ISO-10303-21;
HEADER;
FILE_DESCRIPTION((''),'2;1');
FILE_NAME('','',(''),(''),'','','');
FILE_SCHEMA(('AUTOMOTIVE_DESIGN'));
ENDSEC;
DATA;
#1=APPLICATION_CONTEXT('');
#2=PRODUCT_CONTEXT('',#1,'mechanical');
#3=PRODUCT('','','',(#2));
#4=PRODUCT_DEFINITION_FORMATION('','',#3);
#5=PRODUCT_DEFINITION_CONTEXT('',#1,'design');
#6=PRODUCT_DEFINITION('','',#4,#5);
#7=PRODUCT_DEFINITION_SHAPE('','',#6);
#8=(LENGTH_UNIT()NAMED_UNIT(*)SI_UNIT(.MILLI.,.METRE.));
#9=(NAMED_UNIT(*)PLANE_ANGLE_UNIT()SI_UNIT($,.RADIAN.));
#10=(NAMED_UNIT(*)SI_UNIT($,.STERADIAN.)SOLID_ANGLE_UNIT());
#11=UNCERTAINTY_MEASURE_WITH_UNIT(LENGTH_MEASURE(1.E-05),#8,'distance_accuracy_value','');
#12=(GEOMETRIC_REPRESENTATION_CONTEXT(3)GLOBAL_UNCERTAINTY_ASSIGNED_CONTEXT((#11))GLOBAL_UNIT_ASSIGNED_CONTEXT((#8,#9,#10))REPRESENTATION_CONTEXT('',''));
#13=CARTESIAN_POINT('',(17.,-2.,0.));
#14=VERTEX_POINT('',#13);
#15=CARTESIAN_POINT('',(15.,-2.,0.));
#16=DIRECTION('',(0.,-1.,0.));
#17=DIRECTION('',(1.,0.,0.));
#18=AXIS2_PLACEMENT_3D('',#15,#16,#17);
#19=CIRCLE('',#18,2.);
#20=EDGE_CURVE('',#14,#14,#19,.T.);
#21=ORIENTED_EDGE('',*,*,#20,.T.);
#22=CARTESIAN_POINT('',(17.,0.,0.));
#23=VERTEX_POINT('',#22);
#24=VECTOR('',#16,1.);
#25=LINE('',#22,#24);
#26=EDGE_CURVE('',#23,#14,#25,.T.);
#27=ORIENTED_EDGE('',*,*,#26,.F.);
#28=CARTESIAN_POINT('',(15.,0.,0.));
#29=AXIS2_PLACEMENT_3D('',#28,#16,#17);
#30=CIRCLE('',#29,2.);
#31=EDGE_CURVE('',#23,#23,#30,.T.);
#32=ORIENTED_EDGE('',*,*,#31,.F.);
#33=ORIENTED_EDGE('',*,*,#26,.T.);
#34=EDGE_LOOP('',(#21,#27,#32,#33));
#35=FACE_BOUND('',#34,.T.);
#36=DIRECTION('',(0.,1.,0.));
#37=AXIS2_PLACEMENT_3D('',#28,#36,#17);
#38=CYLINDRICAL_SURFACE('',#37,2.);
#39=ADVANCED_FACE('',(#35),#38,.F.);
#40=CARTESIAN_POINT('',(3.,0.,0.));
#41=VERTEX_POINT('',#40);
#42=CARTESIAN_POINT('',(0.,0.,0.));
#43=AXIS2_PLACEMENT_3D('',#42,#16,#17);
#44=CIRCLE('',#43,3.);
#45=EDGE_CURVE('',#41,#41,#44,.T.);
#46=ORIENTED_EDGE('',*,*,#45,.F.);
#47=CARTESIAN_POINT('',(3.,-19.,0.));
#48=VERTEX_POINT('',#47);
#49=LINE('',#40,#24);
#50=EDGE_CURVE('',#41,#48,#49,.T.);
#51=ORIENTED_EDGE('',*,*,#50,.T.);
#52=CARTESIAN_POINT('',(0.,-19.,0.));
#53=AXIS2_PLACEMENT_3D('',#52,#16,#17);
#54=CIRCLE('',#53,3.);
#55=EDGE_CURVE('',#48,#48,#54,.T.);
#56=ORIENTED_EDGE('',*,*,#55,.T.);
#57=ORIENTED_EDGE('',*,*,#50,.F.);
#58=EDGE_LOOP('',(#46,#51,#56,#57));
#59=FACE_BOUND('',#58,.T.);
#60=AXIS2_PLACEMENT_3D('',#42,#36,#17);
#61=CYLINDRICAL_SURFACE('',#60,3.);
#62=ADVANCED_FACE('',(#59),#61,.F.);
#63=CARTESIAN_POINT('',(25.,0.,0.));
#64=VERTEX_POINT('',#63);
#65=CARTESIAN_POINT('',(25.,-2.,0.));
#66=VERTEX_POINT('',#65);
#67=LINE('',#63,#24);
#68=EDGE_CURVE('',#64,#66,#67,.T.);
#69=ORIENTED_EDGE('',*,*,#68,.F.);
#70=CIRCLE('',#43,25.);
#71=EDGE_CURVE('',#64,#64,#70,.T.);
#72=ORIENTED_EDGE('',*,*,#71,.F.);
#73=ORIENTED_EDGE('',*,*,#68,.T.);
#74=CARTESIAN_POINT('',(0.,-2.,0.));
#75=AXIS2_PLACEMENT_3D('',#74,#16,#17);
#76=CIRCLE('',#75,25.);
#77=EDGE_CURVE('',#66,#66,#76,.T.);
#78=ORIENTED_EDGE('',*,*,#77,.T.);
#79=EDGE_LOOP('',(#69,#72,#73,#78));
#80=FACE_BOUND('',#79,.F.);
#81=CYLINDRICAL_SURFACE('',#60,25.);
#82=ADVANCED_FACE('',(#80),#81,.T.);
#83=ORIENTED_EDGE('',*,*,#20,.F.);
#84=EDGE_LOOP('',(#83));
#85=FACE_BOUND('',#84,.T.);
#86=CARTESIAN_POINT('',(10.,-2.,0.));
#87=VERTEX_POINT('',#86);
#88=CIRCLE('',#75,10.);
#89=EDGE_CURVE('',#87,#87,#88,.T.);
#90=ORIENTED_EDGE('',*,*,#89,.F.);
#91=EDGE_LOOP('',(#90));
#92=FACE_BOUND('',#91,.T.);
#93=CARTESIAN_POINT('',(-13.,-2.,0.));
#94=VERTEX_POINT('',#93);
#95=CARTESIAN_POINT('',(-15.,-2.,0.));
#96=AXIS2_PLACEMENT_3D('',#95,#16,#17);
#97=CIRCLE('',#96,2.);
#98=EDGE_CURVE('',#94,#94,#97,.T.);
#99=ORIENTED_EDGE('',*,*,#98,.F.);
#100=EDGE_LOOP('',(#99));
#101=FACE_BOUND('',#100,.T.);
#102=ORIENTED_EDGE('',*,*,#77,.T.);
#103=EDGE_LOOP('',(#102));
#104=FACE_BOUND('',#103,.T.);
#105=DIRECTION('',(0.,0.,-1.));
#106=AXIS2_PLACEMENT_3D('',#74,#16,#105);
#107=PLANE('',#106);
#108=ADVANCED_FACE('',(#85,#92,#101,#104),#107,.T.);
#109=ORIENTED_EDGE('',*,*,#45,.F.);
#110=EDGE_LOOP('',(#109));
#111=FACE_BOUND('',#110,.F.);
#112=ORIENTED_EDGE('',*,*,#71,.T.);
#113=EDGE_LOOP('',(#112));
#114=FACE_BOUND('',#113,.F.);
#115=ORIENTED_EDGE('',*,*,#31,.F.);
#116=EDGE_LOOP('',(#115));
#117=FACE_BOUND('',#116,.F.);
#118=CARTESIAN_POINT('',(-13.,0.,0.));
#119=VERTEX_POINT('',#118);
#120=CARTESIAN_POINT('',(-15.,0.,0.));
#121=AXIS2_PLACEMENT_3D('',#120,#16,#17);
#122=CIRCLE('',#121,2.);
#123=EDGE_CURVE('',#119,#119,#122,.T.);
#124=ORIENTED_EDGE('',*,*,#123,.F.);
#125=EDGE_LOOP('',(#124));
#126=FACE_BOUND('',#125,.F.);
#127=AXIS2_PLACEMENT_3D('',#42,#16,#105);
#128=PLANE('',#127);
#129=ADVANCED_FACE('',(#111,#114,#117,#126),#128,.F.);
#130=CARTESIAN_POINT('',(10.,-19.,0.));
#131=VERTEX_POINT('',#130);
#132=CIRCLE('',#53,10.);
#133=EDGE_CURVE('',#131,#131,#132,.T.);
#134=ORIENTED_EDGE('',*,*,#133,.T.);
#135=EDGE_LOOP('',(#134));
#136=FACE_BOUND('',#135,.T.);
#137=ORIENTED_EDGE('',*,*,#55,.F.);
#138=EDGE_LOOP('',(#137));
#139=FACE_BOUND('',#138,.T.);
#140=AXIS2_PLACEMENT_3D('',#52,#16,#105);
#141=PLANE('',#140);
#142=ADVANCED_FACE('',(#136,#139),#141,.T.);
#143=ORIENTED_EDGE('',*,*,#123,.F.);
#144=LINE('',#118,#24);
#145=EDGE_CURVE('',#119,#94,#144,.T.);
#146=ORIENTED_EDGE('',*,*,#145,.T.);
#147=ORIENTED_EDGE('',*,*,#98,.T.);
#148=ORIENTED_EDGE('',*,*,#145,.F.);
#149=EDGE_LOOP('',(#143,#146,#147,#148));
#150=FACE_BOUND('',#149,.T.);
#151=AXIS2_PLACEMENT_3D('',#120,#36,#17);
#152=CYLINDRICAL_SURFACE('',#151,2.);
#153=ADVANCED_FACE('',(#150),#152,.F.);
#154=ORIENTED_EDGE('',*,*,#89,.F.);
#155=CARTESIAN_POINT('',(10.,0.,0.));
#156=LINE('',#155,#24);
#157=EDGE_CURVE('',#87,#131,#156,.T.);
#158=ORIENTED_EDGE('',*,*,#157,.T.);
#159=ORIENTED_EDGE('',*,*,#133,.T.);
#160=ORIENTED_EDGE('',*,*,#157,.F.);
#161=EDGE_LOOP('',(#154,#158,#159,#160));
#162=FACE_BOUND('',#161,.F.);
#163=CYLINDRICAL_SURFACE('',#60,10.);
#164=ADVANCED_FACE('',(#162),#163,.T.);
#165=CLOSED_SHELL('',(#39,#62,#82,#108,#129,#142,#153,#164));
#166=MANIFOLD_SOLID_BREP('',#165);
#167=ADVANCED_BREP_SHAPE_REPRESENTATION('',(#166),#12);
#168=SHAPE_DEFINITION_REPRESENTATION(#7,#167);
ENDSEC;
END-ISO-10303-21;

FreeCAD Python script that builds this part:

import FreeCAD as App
import Part
import Sketcher

V = App.Vector
Q = App.Units.Quantity

doc = App.newDocument("Part")
body = doc.addObject("PartDesign::Body", "Body")

# Sketch on XZ plane
sketch1 = body.newObject("Sketcher::SketchObject", "Sketch")
sketch1.AttachmentSupport = (doc.getObject("XZ_Plane"), [""])
sketch1.MapMode = "FlatFace"
sketch1.addGeometry([
    Part.Circle(V(0, 0, 0), V(0, 0, 1), 10),
    Part.Circle(V(0, 0, 0), V(0, 0, 1), 3),
], False)
sketch1.addConstraint([
    Sketcher.Constraint("Coincident", 0, 3, -1, 1),
    Sketcher.Constraint("Coincident", 1, 3, -1, 1),
    Sketcher.Constraint("Diameter", 0, Q("20 mm")),
    Sketcher.Constraint("Diameter", 1, Q("6 mm")),
])
pad1 = body.newObject("PartDesign::Pad", "Pad")
pad1.Profile = sketch1
pad1.Length = 19

# Sketch on XZ plane
sketch2 = body.newObject("Sketcher::SketchObject", "Sketch001")
sketch2.AttachmentSupport = (doc.getObject("XZ_Plane"), [""])
sketch2.MapMode = "FlatFace"
sketch2.addGeometry([
    Part.Circle(V(0, 0, 0), V(0, 0, 1), 25),
    Part.Circle(V(-15, 0, 0), V(0, 0, 1), 2),
    Part.Circle(V(0, 0, 0), V(0, 0, 1), 10),
    Part.Circle(V(15, 0, 0), V(0, 0, 1), 2),
], False)
sketch2.addConstraint([
    Sketcher.Constraint("Coincident", 0, 3, -1, 1),
    Sketcher.Constraint("Coincident", 2, 3, -1, 1),
    Sketcher.Constraint("Equal", 1, 3),
    Sketcher.Constraint("Symmetric", 1, 3, 3, 3, -1, 1),
    Sketcher.Constraint("PointOnObject", 1, 3, -1),
    Sketcher.Constraint("Diameter", 0, Q("50 mm")),
    Sketcher.Constraint("Diameter", 1, Q("4 mm")),
    Sketcher.Constraint("Diameter", 2, Q("20 mm")),
    Sketcher.Constraint("DistanceX", 1, 3, -1, 1, Q("15 mm")),
])
pad2 = body.newObject("PartDesign::Pad", "Pad001")
pad2.Profile = sketch2
pad2.Length = 2

doc.recompute()
